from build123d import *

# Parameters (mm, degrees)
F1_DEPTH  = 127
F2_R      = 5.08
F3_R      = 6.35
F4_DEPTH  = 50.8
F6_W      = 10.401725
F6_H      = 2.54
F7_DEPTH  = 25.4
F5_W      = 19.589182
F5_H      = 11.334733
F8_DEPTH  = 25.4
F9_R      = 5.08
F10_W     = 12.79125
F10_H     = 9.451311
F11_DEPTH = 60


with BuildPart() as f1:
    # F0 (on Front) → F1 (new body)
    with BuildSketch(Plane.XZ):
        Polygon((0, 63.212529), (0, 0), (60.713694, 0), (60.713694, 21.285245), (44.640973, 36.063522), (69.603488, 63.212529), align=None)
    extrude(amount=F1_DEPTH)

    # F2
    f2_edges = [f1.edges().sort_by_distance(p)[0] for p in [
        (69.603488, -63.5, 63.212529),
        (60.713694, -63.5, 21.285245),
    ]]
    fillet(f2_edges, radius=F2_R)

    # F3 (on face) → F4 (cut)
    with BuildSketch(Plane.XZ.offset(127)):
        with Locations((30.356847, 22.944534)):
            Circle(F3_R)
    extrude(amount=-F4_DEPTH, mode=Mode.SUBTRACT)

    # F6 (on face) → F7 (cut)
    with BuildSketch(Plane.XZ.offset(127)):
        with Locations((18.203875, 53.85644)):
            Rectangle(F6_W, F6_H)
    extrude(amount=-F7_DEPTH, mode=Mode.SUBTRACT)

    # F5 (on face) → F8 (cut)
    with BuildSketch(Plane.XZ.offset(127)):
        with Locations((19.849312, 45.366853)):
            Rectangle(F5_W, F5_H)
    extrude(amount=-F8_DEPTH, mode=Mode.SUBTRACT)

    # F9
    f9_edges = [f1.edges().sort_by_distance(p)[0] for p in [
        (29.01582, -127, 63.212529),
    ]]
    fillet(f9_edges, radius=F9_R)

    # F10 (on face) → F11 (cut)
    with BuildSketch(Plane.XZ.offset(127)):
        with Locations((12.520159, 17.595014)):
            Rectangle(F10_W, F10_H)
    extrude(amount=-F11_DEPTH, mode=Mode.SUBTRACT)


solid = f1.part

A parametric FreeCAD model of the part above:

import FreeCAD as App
import Part
import Sketcher
from FreeCAD import Vector
Q = App.Units.Quantity


def edges_at(feature, points):
    """Names of the edges that pass closest to the given points."""
    edges = feature.Shape.Edges
    near = lambda p: min(range(len(edges)), key=lambda i: edges[i].distToShape(Part.Vertex(*p))[0])
    return sorted({f"Edge{near(p) + 1}" for p in points})


def add_polygon(sketch, points):
    """Adds a closed chain of lines whose ends are joined by coincident constraints."""
    first, n = sketch.GeometryCount, len(points)
    for a, b in zip(points, points[1:] + points[:1]):
        sketch.addGeometry(Part.LineSegment(App.Vector(*a, 0), App.Vector(*b, 0)), False)
    for i in range(n):
        sketch.addConstraint(Sketcher.Constraint("Coincident", first + i, 2, first + (i + 1) % n, 1))

doc = App.newDocument("Part")
params = doc.addObject("Spreadsheet::Sheet", "Params")
for row, (alias, value) in enumerate([
    ("pad1_length", "5 in"),
    ("fillet_radius", "0.2 in"),
    ("sketch2_diameter", "0.5 in"),
    ("pocket1_length", "2 in"),
    ("sketch3_height", "0.1 in"),
    ("pocket2_length", "1 in"),
    ("pocket3_length", "1 in"),
    ("fillet2_radius", "0.2 in"),
    ("pocket4_length", "60 mm"),
], start=1):
    params.set(f"A{row}", alias)
    params.set(f"B{row}", "=" + value)
    params.setAlias(f"B{row}", alias)

body = doc.addObject("PartDesign::Body", "Body")

# Sketch on XZ plane
sketch1 = body.newObject("Sketcher::SketchObject", "Sketch")
sketch1.AttachmentSupport = (doc.getObject("XZ_Plane"), [""])
sketch1.MapMode = "FlatFace"
add_polygon(sketch1, [(0, 63), (0, 0), (61, 0), (61, 21), (45, 36), (70, 63)])  # lines 0-5
sketch1.addConstraint([
    Sketcher.Constraint("Vertical", 0),
    Sketcher.Constraint("Horizontal", 1),
    Sketcher.Constraint("Vertical", 2),
    Sketcher.Constraint("Horizontal", 5),
    Sketcher.Constraint("Coincident", 0, 2, -1, 1),
    Sketcher.Constraint("Perpendicular", 3, 4),
    Sketcher.Constraint("DistanceX", 5, 2, 5, 1, Q("69.603488 mm")),
    Sketcher.Constraint("DistanceY", 0, 2, 0, 1, Q("63.212529 mm")),
    Sketcher.Constraint("Distance", 4, Q("36.880832 mm")),
    Sketcher.Constraint("DistanceX", 1, 1, 1, 2, Q("60.713694 mm")),
    Sketcher.Constraint("DistanceY", 2, 1, 2, 2, Q("21.285245 mm")),
])
pad1 = body.newObject("PartDesign::Pad", "Pad")
pad1.Profile = sketch1
pad1.setExpression("Length", "Params.pad1_length")
doc.recompute()

fillet = body.newObject("PartDesign::Fillet", "Fillet")
fillet.Base = (pad1, edges_at(pad1, [(69.603, -63.5, 63.213), (60.714, -63.5, 21.285)]))
fillet.setExpression("Radius", "Params.fillet_radius")

# Sketch on XZ plane
sketch2 = body.newObject("Sketcher::SketchObject", "Sketch001")
sketch2.AttachmentSupport = (doc.getObject("XZ_Plane"), [""])
sketch2.MapMode = "FlatFace"
sketch2.AttachmentOffset = App.Placement(Vector(0, 0, 5 * 25.4), App.Rotation())
sketch2.addGeometry(Part.Circle(Vector(30, 23, 0), Vector(0, 0, 1), 6), False)
sketch2.addConstraint([
    Sketcher.Constraint("Diameter", 0, Q("0.5 in")),
    Sketcher.Constraint("DistanceX", -1, 1, 0, 3, Q("30.356847 mm")),
    Sketcher.Constraint("DistanceY", -1, 1, 0, 3, Q("22.944534 mm")),
])
sketch2.setExpression("Constraints[0]", "Params.sketch2_diameter")
pocket1 = body.newObject("PartDesign::Pocket", "Pocket")
pocket1.Profile = sketch2
pocket1.setExpression("Length", "Params.pocket1_length")

# Sketch on XZ plane
sketch3 = body.newObject("Sketcher::SketchObject", "Sketch002")
sketch3.AttachmentSupport = (doc.getObject("XZ_Plane"), [""])
sketch3.MapMode = "FlatFace"
sketch3.AttachmentOffset = App.Placement(Vector(0, 0, 5 * 25.4), App.Rotation())
add_polygon(sketch3, [(13, 55.1), (13, 52.6), (23.4, 52.6), (23.4, 55.1)])  # lines 0-3
sketch3.addConstraint([
    Sketcher.Constraint("Vertical", 0),
    Sketcher.Constraint("Horizontal", 1),
    Sketcher.Constraint("Vertical", 2),
    Sketcher.Constraint("Horizontal", 3),
    Sketcher.Constraint("DistanceY", 0, 2, 0, 1, Q("0.1 in")),
    Sketcher.Constraint("DistanceX", 1, 1, 1, 2, Q("10.401725 mm")),
    Sketcher.Constraint("DistanceY", -1, 1, 0, 2, Q("52.58644 mm")),
    Sketcher.Constraint("DistanceX", -1, 1, 0, 2, Q("13.003013 mm")),
])
sketch3.setExpression("Constraints[8]", "Params.sketch3_height")
pocket2 = body.newObject("PartDesign::Pocket", "Pocket001")
pocket2.Profile = sketch3
pocket2.setExpression("Length", "Params.pocket2_length")

# Sketch on XZ plane
sketch4 = body.newObject("Sketcher::SketchObject", "Sketch003")
sketch4.AttachmentSupport = (doc.getObject("XZ_Plane"), [""])
sketch4.MapMode = "FlatFace"
sketch4.AttachmentOffset = App.Placement(Vector(0, 0, 5 * 25.4), App.Rotation())
add_polygon(sketch4, [(10, 51), (10, 40), (30, 40), (30, 51)])  # lines 0-3
sketch4.addConstraint([
    Sketcher.Constraint("Vertical", 0),
    Sketcher.Constraint("Horizontal", 1),
    Sketcher.Constraint("Vertical", 2),
    Sketcher.Constraint("Horizontal", 3),
    Sketcher.Constraint("DistanceX", 1, 1, 1, 2, Q("19.589182 mm")),
    Sketcher.Constraint("DistanceY", 0, 2, 0, 1, Q("11.334733 mm")),
    Sketcher.Constraint("DistanceX", -1, 1, 0, 2, Q("10.054721 mm")),
    Sketcher.Constraint("DistanceY", -1, 1, 2, 2, Q("51.034219 mm")),
])
pocket3 = body.newObject("PartDesign::Pocket", "Pocket002")
pocket3.Profile = sketch4
pocket3.setExpression("Length", "Params.pocket3_length")
doc.recompute()

fillet2 = body.newObject("PartDesign::Fillet", "Fillet001")
fillet2.Base = (pocket3, edges_at(pocket3, [(29.016, -127, 63.213)]))
fillet2.setExpression("Radius", "Params.fillet2_radius")

# Sketch on XZ plane
sketch5 = body.newObject("Sketcher::SketchObject", "Sketch004")
sketch5.AttachmentSupport = (doc.getObject("XZ_Plane"), [""])
sketch5.MapMode = "FlatFace"
sketch5.AttachmentOffset = App.Placement(Vector(0, 0, 5 * 25.4), App.Rotation())
add_polygon(sketch5, [(6, 22), (6, 13), (19, 13), (19, 22)])  # lines 0-3
sketch5.addConstraint([
    Sketcher.Constraint("Vertical", 0),
    Sketcher.Constraint("Horizontal", 1),
    Sketcher.Constraint("Vertical", 2),
    Sketcher.Constraint("Horizontal", 3),
    Sketcher.Constraint("DistanceX", 1, 1, 1, 2, Q("12.79125 mm")),
    Sketcher.Constraint("DistanceY", 0, 2, 0, 1, Q("9.451311 mm")),
    Sketcher.Constraint("DistanceY", -1, 1, 0, 2, Q("12.869359 mm")),
    Sketcher.Constraint("DistanceX", -1, 1, 0, 2, Q("6.124534 mm")),
])
pocket4 = body.newObject("PartDesign::Pocket", "Pocket003")
pocket4.Profile = sketch5
pocket4.setExpression("Length", "Params.pocket4_length")

doc.recompute()
